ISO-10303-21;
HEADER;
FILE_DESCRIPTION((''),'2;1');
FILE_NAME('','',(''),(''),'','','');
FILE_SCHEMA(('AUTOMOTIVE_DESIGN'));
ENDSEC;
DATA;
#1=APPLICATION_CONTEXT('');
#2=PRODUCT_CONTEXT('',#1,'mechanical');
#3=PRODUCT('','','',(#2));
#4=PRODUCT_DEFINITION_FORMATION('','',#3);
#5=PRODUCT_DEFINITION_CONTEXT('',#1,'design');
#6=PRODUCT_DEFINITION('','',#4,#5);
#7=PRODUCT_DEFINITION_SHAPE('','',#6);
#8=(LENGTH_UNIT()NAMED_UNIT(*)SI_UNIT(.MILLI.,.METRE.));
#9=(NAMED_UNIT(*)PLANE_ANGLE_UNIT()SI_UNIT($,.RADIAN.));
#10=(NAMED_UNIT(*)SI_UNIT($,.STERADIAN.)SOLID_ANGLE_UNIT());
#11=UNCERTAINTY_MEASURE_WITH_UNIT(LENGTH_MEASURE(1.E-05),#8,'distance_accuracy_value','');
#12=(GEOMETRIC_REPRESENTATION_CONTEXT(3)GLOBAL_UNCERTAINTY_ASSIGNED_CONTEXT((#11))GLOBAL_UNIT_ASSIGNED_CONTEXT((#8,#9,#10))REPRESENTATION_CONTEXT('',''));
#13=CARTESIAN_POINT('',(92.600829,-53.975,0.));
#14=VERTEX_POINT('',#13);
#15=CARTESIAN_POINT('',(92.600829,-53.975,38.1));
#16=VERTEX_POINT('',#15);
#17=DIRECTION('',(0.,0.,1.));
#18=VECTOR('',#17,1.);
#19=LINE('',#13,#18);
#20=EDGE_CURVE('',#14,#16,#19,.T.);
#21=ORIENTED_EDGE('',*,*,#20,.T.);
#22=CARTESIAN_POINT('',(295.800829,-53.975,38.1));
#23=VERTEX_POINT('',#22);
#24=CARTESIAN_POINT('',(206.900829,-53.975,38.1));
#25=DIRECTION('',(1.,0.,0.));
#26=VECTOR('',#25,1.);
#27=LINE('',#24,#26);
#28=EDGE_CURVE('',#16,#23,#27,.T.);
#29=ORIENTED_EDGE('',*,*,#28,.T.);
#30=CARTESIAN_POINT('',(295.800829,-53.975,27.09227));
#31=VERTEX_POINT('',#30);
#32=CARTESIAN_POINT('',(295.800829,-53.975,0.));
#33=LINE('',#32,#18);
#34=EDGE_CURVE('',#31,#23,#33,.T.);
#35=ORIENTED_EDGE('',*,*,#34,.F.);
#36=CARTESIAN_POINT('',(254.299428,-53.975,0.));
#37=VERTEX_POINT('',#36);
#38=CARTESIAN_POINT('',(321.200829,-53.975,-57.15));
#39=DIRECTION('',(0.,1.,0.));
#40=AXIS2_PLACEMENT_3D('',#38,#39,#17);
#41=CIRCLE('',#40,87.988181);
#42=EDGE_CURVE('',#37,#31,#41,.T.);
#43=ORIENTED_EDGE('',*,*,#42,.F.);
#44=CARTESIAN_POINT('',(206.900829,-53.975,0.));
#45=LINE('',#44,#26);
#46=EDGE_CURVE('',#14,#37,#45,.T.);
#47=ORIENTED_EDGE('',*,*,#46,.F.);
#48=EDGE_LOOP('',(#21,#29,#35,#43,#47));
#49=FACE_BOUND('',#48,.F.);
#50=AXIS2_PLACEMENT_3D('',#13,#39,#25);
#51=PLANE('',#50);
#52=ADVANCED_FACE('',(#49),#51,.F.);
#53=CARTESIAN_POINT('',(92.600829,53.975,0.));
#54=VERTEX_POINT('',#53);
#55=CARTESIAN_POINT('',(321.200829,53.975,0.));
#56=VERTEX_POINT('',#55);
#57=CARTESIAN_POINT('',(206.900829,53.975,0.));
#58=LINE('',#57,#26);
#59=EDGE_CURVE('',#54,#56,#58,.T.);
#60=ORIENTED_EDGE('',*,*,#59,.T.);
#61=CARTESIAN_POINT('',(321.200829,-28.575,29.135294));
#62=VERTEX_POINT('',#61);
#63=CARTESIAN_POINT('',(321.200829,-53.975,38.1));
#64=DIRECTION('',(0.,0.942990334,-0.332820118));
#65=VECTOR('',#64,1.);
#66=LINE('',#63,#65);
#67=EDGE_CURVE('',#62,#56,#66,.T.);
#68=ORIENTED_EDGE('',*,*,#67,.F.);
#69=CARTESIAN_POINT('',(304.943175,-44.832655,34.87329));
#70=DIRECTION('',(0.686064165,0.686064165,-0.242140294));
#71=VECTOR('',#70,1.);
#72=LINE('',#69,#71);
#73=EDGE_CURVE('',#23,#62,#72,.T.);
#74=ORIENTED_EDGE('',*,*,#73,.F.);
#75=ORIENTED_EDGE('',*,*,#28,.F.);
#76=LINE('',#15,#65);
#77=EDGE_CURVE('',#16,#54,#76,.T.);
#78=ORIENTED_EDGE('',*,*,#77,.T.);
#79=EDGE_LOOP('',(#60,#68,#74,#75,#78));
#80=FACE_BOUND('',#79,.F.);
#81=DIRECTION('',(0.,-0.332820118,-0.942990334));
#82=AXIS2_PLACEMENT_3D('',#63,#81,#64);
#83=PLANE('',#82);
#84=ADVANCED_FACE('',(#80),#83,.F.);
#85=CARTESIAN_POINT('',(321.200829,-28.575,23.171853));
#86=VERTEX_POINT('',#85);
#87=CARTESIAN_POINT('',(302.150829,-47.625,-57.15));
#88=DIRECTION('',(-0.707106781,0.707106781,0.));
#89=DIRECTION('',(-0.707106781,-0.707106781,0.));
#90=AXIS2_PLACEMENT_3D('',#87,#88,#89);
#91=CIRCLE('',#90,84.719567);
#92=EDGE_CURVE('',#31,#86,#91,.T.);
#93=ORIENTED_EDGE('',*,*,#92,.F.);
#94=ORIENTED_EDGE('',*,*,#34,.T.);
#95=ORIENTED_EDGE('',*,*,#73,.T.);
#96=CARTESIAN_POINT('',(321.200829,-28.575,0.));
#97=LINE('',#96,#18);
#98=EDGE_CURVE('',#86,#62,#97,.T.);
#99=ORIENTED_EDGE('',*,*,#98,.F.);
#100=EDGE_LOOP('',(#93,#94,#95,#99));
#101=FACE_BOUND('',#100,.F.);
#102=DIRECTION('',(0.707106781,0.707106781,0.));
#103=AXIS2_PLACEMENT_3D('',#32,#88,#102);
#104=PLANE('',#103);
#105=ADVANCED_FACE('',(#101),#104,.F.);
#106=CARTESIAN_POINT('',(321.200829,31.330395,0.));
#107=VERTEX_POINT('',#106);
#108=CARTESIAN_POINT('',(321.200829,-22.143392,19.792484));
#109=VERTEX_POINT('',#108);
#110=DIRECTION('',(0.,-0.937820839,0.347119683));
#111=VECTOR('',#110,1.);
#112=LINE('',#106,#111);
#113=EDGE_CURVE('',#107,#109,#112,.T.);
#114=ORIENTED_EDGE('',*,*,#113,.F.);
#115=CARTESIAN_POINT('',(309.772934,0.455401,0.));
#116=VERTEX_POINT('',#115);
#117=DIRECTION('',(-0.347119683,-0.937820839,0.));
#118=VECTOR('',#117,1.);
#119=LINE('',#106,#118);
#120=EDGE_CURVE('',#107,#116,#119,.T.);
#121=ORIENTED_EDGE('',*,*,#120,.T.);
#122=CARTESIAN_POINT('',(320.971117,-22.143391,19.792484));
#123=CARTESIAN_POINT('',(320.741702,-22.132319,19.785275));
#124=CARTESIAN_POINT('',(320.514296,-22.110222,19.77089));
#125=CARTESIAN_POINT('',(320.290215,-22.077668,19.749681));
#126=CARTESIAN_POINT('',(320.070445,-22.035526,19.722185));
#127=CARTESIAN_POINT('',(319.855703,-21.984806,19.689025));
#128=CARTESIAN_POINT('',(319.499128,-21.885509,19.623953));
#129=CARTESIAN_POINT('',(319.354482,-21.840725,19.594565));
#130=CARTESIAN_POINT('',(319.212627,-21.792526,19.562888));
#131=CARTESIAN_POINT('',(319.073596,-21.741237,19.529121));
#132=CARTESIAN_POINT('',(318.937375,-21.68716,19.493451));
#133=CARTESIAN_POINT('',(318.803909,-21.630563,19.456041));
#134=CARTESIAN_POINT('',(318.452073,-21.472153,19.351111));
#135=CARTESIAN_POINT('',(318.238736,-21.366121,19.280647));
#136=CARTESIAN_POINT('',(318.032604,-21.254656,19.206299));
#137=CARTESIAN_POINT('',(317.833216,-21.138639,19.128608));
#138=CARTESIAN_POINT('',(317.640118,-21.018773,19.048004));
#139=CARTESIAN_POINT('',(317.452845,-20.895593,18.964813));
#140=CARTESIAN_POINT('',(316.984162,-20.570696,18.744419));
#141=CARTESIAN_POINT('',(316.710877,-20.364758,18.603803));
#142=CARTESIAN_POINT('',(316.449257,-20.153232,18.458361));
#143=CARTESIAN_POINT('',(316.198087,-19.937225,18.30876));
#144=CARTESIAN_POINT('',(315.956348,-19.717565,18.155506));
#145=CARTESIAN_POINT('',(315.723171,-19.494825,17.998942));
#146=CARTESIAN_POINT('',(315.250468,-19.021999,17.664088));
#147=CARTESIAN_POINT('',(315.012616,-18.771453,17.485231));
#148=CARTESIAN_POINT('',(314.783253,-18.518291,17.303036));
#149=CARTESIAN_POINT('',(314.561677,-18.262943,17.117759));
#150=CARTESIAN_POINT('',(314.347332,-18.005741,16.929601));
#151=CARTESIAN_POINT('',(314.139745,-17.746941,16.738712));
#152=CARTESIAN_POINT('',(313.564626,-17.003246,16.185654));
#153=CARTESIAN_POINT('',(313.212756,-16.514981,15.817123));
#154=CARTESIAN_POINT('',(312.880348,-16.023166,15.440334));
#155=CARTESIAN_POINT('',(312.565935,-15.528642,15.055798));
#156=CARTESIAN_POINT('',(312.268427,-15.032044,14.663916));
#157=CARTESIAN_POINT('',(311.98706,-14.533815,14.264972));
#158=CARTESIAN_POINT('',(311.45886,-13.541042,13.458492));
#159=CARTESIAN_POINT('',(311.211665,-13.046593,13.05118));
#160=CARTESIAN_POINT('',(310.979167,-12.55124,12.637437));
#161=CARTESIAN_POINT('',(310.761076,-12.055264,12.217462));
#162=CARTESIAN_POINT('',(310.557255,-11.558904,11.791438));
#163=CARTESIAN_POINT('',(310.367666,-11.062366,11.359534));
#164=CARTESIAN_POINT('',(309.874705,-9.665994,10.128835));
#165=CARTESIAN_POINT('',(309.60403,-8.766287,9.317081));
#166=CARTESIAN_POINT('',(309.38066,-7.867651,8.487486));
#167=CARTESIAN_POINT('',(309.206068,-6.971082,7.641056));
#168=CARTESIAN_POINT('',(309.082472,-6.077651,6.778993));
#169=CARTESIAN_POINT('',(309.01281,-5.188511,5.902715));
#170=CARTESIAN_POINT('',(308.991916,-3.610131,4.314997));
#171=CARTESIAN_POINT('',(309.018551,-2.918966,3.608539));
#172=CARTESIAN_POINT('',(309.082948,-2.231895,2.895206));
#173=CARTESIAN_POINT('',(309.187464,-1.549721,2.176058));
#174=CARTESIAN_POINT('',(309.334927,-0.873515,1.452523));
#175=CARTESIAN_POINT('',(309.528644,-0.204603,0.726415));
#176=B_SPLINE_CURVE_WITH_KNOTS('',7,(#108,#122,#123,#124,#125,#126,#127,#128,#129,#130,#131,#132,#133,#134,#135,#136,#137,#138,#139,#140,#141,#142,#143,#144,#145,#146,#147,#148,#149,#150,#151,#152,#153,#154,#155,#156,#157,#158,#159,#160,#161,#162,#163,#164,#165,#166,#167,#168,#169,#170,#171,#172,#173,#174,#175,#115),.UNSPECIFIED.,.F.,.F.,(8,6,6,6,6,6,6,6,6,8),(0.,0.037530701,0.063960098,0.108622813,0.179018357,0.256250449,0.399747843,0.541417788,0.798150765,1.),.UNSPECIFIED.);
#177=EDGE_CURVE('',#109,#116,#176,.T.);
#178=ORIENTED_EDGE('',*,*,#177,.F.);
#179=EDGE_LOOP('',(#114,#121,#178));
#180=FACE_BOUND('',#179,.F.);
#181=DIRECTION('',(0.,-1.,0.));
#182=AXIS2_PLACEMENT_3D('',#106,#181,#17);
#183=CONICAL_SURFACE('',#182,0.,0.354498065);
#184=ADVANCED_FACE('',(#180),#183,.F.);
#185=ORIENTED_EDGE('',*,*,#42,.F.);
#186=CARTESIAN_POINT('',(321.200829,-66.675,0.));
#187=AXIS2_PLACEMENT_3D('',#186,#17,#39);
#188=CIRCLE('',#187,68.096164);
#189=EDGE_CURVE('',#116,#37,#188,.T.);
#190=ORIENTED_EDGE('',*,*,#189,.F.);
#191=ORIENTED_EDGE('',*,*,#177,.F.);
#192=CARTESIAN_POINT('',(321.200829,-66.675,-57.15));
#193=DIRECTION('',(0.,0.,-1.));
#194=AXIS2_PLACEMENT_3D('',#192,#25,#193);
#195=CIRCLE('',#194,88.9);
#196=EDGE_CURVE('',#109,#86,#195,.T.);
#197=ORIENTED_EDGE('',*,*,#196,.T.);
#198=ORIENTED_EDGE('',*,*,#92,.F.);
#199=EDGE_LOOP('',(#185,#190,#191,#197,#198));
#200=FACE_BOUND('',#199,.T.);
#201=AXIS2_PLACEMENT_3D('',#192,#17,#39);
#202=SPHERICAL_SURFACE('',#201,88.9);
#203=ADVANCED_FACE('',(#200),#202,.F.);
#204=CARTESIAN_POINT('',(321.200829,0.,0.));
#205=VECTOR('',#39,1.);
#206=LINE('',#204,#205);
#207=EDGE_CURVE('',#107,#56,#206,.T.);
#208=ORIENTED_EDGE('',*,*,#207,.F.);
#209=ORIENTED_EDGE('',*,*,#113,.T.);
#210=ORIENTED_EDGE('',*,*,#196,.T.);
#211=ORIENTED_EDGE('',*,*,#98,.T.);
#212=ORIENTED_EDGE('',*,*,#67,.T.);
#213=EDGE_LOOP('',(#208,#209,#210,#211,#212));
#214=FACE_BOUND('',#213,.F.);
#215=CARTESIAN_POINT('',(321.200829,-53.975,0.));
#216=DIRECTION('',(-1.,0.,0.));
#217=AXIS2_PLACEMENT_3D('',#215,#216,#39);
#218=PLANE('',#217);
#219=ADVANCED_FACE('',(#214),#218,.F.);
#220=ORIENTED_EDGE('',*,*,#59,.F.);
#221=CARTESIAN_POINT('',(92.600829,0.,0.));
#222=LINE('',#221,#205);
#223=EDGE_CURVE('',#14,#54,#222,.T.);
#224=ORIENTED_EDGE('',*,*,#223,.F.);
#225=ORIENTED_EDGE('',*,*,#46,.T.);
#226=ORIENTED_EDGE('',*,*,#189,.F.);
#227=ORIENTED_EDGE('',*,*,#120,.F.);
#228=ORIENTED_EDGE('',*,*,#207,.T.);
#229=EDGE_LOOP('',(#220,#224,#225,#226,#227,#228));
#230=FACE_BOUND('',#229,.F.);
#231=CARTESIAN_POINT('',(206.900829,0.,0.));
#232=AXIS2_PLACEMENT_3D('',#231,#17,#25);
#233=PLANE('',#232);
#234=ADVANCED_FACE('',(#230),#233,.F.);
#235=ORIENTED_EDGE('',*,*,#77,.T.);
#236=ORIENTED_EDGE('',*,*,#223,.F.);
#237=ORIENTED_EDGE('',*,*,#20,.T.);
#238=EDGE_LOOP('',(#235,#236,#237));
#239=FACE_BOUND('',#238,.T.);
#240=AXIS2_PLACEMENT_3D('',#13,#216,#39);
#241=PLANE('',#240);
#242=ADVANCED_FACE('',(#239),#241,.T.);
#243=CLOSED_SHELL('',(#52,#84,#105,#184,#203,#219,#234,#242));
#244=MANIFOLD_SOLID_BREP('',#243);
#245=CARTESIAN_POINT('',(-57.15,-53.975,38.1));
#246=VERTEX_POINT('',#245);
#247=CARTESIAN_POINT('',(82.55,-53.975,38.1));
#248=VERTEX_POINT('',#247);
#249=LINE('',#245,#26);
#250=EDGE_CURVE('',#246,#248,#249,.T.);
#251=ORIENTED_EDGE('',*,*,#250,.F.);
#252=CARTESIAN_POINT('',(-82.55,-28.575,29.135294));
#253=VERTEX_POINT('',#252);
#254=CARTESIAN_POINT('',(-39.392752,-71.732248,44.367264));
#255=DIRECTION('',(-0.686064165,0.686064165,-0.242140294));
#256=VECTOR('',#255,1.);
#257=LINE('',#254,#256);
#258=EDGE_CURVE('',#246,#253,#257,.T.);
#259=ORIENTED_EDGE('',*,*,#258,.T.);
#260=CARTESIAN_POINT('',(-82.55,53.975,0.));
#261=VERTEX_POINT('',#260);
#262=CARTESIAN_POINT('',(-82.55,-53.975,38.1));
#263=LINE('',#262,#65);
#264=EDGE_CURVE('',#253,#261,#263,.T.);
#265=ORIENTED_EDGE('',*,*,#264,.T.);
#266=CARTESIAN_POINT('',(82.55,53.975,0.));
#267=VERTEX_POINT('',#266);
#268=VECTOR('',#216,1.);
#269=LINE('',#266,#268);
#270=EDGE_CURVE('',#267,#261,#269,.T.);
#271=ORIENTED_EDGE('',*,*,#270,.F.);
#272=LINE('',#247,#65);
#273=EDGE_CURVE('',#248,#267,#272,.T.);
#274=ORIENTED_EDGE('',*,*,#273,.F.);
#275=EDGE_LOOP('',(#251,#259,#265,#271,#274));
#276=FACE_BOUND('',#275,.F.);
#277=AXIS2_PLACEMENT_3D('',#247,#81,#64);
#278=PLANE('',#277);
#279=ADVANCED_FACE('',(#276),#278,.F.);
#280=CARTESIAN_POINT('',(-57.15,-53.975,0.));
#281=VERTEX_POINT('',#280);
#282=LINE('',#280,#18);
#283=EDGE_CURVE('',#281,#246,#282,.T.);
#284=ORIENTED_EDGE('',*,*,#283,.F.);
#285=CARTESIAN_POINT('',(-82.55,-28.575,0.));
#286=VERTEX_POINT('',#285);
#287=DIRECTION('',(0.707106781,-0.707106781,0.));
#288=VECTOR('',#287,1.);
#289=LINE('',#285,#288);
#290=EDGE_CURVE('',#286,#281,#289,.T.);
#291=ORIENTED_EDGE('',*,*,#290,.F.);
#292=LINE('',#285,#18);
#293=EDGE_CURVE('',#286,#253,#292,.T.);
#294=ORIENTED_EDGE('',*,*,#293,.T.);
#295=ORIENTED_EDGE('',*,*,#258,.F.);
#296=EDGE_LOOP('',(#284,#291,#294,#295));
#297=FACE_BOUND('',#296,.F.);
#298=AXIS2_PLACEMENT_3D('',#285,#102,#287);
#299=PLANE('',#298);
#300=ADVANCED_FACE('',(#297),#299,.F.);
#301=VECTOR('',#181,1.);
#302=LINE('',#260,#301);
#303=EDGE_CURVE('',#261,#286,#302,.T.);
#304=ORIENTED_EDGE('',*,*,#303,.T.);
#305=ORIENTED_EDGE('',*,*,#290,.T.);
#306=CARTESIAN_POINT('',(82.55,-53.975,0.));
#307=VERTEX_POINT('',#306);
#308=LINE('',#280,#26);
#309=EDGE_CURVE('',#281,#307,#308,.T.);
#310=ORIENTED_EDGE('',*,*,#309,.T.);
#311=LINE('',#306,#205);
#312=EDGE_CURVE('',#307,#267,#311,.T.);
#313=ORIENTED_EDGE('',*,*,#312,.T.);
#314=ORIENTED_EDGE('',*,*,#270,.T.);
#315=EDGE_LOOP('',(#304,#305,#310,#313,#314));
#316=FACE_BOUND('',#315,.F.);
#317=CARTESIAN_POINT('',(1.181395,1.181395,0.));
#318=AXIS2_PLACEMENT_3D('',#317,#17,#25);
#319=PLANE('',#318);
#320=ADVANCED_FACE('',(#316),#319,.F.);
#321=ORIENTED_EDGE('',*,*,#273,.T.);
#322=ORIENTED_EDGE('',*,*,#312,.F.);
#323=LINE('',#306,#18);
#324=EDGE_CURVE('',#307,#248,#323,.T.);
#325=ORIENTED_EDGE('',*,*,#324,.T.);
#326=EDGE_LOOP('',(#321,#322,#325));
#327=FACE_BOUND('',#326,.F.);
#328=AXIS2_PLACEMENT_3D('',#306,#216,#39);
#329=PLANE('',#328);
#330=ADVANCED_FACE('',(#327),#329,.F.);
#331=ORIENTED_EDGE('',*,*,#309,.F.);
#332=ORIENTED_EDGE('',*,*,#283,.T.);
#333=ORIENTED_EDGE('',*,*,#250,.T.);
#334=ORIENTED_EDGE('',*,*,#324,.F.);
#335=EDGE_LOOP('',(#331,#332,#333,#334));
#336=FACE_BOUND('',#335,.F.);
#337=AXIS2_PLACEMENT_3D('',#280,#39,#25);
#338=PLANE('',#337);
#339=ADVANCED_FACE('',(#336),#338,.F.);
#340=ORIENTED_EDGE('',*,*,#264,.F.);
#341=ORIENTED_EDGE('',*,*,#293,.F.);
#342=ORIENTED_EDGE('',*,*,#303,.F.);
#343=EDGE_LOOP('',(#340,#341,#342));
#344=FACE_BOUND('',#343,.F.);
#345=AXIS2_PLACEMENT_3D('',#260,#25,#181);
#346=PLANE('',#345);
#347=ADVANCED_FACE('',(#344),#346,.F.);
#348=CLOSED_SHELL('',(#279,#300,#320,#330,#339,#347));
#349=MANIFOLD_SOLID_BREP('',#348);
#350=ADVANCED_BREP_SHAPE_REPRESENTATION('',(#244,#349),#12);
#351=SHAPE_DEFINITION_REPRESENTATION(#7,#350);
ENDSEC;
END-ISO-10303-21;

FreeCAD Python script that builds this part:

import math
import FreeCAD as App
import Part
import Sketcher
Q = App.Units.Quantity


def add_polygon(sketch, points):
    """Adds a closed chain of lines whose ends are joined by coincident constraints."""
    first, n = sketch.GeometryCount, len(points)
    for a, b in zip(points, points[1:] + points[:1]):
        sketch.addGeometry(Part.LineSegment(App.Vector(*a, 0), App.Vector(*b, 0)), False)
    for i in range(n):
        sketch.addConstraint(Sketcher.Constraint("Coincident", first + i, 2, first + (i + 1) % n, 1))

doc = App.newDocument("Part")
body = doc.addObject("PartDesign::Body", "Body")

# Sketch on XY plane
sketch1 = body.newObject("Sketcher::SketchObject", "Sketch")
sketch1.AttachmentSupport = (doc.getObject("XY_Plane"), [""])
sketch1.MapMode = "FlatFace"
add_polygon(sketch1, [(83, 54), (-83, 54), (-83, -29), (-57, -54), (83, -54)])  # lines 0-4
sketch1.addConstraint([
    Sketcher.Constraint("Horizontal", 0),
    Sketcher.Constraint("Vertical", 1),
    Sketcher.Constraint("Horizontal", 3),
    Sketcher.Constraint("Vertical", 4),
    Sketcher.Constraint("Symmetric", 0, 2, 3, 2, -1, 1),
    Sketcher.Constraint("DistanceX", 0, 2, 0, 1, Q("6.5 in")),
    Sketcher.Constraint("DistanceX", 3, 1, 3, 2, Q("5.5 in")),
    Sketcher.Constraint("Angle", 2, Q("-45 deg")),
    Sketcher.Constraint("DistanceY", 1, 2, 1, 1, Q("3.25 in")),
])
pad1 = body.newObject("PartDesign::Pad", "Pad")
pad1.Profile = sketch1
pad1.Length = Q("1.5 in")

# Sketch on YZ plane
sketch2 = body.newObject("Sketcher::SketchObject", "Sketch001")
sketch2.AttachmentSupport = (doc.getObject("YZ_Plane"), [""])
sketch2.MapMode = "FlatFace"
sketch2.AttachmentOffset = App.Placement(App.Vector(0, 0, 3.25 * 25.4), App.Rotation())
add_polygon(sketch2, [(-54, 38), (54, 0), (54, 38)])  # lines 0-2
sketch2.addConstraint([
    Sketcher.Constraint("Vertical", 1),
    Sketcher.Constraint("Horizontal", 2),
    Sketcher.Constraint("PointOnObject", 0, 2, -1),
    Sketcher.Constraint("DistanceY", 1, 1, 1, 2, Q("1.5 in")),
    Sketcher.Constraint("DistanceX", 2, 2, 2, 1, Q("4.25 in")),
    Sketcher.Constraint("DistanceX", -1, 1, 0, 2, Q("2.125 in")),
])
pocket1 = body.newObject("PartDesign::Pocket", "Pocket")
pocket1.Profile = sketch2
pocket1.Type = "ThroughAll"
body2 = doc.addObject("PartDesign::Body", "Body001")

# Sketch on XY plane
sketch3 = body2.newObject("Sketcher::SketchObject", "Sketch002")
sketch3.AttachmentSupport = (doc.getObject("XY_Plane001"), [""])
sketch3.MapMode = "FlatFace"
add_polygon(sketch3, [(93, 54), (93, -54), (321, -54), (321, 54)])  # lines 0-3
sketch3.addConstraint([
    Sketcher.Constraint("Vertical", 0),
    Sketcher.Constraint("Horizontal", 1),
    Sketcher.Constraint("Vertical", 2),
    Sketcher.Constraint("Horizontal", 3),
    Sketcher.Constraint("DistanceX", 1, 1, 1, 2, Q("9 in")),
    Sketcher.Constraint("DistanceY", 0, 2, 0, 1, Q("4.25 in")),
    Sketcher.Constraint("DistanceY", 0, 2, -1, 1, Q("2.125 in")),
    Sketcher.Constraint("DistanceX", -1, 1, 0, 2, 92.600829),
])
pad2 = body2.newObject("PartDesign::Pad", "Pad001")
pad2.Profile = sketch3
pad2.Length = Q("1.5 in")

# Sketch on YZ plane
sketch4 = body2.newObject("Sketcher::SketchObject", "Sketch003")
sketch4.AttachmentSupport = (doc.getObject("YZ_Plane001"), [""])
sketch4.MapMode = "FlatFace"
sketch4.AttachmentOffset = App.Placement(App.Vector(0, 0, 321.200829), App.Rotation())
add_polygon(sketch4, [(-54, 38), (54, 0), (54, 38)])  # lines 0-2
sketch4.addConstraint([
    Sketcher.Constraint("Vertical", 1),
    Sketcher.Constraint("Horizontal", 2),
    Sketcher.Constraint("PointOnObject", 0, 2, -1),
    Sketcher.Constraint("DistanceY", 1, 1, 1, 2, Q("1.5 in")),
    Sketcher.Constraint("DistanceX", 2, 2, 2, 1, Q("4.25 in")),
    Sketcher.Constraint("DistanceX", -1, 1, 0, 2, Q("2.125 in")),
])
pocket2 = body2.newObject("PartDesign::Pocket", "Pocket001")
pocket2.Profile = sketch4
pocket2.Type = "ThroughAll"

# Sketch on YZ plane
sketch5 = body2.newObject("Sketcher::SketchObject", "Sketch004")
sketch5.AttachmentSupport = (doc.getObject("YZ_Plane001"), [""])
sketch5.MapMode = "FlatFace"
sketch5.AttachmentOffset = App.Placement(App.Vector(0, 0, 321.200829), App.Rotation())
sketch5.addGeometry([
    Part.ArcOfCircle(Part.Circle(App.Vector(-67, -57, 0), App.Vector(0, 0, 1), 89), math.radians(81.79), math.radians(90)),
    Part.LineSegment(App.Vector(-67, 32, 0), App.Vector(-67, -146, 0)),
    Part.ArcOfCircle(Part.Circle(App.Vector(-67, -57, 0), App.Vector(0, 0, 1), 89), math.radians(-90), math.radians(82)),
], False)
sketch5.addGeometry(Part.LineSegment(App.Vector(-67, 32, 0), App.Vector(-67, -146, 0)), True)  # axis
sketch5.addConstraint([
    Sketcher.Constraint("Coincident", 0, 2, 1, 1),
    Sketcher.Constraint("Coincident", 1, 2, 2, 1),
    Sketcher.Constraint("Tangent", 2, 2, 0, 1),
    Sketcher.Constraint("Vertical", 1),
    Sketcher.Constraint("Vertical", 3),
    Sketcher.Constraint("Coincident", 3, 1, 0, 2),
    Sketcher.Constraint("Equal", 0, 2),
    Sketcher.Constraint("Vertical", 2, 3, 0, 2),
    Sketcher.Constraint("Equal", 1, 3),
    Sketcher.Constraint("Radius", 0, Q("3.5 in")),
    Sketcher.Constraint("DistanceX", 0, 2, 2, 2, Q("0.5 in")),
    Sketcher.Constraint("DistanceY", 0, 3, -1, 1, Q("2.25 in")),
    Sketcher.Constraint("DistanceX", 0, 3, -1, 1, Q("2.625 in")),
])
groove = body2.newObject("PartDesign::Groove", "Groove")
groove.Profile = sketch5
groove.ReferenceAxis = (sketch5, ["Axis0"])
groove.Angle = 360

# Sketch on YZ plane
sketch6 = body2.newObject("Sketcher::SketchObject", "Sketch005")
sketch6.AttachmentSupport = (doc.getObject("YZ_Plane001"), [""])
sketch6.MapMode = "FlatFace"
sketch6.AttachmentOffset = App.Placement(App.Vector(0, 0, 321.200829), App.Rotation())
add_polygon(sketch6, [(31, 0), (-22, 20), (-22, 0)])  # lines 0-2
sketch6.addConstraint([
    Sketcher.Constraint("Vertical", 1),
    Sketcher.Constraint("Horizontal", 2),
    Sketcher.Constraint("PointOnObject", 1, 2, -1),
    Sketcher.Constraint("DistanceX", 2, 1, 2, 2, 53.473787),
    Sketcher.Constraint("DistanceY", 1, 2, 1, 1, 19.792484),
    Sketcher.Constraint("DistanceX", 0, 2, -1, 1, 22.143392),
])
groove2 = body2.newObject("PartDesign::Groove", "Groove001")
groove2.Profile = sketch6
groove2.ReferenceAxis = (sketch6, ["H_Axis"])
groove2.Angle = 360

# Sketch on XY plane
sketch7 = body2.newObject("Sketcher::SketchObject", "Sketch006")
sketch7.AttachmentSupport = (doc.getObject("XY_Plane001"), [""])
sketch7.MapMode = "FlatFace"
add_polygon(sketch7, [(321, -29), (321, -54), (296, -54)])  # lines 0-2
sketch7.addConstraint([
    Sketcher.Constraint("Vertical", 0),
    Sketcher.Constraint("Horizontal", 1),
    Sketcher.Constraint("Equal", 1, 0),
    Sketcher.Constraint("DistanceX", 1, 2, 1, 1, Q("1 in")),
    Sketcher.Constraint("DistanceY", 0, 2, -1, 1, Q("2.125 in")),
    Sketcher.Constraint("DistanceX", -1, 1, 0, 2, 321.200829),
])
pocket3 = body2.newObject("PartDesign::Pocket", "Pocket002")
pocket3.Profile = sketch7
pocket3.Length = Q("4 in")
pocket3.Reversed = True

doc.recompute()
